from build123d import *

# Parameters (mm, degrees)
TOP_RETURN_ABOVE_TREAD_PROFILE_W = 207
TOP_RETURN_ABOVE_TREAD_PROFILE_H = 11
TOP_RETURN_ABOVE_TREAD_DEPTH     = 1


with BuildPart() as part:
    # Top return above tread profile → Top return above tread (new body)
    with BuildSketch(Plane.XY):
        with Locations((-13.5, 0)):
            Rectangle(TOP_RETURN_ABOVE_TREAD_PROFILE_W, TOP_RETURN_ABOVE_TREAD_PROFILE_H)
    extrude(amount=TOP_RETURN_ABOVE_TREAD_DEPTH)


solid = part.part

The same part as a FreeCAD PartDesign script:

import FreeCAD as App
import Part
import Sketcher

V = App.Vector
Q = App.Units.Quantity


def add_polygon(sketch, points):
    """Adds a closed chain of lines whose ends are joined by coincident constraints."""
    first, n = sketch.GeometryCount, len(points)
    for a, b in zip(points, points[1:] + points[:1]):
        sketch.addGeometry(Part.LineSegment(App.Vector(*a, 0), App.Vector(*b, 0)), False)
    for i in range(n):
        sketch.addConstraint(Sketcher.Constraint("Coincident", first + i, 2, first + (i + 1) % n, 1))

doc = App.newDocument("Part")
body = doc.addObject("PartDesign::Body", "Body")

# Sketch on XY plane
sketch1 = doc.addObject("Sketcher::SketchObject", "Sketch")
body.addObject(sketch1)
sketch1.AttachmentSupport = (doc.XY_Plane, [""])
sketch1.MapMode = "FlatFace"
add_polygon(sketch1, [(-117, 6), (-117, -6), (90, -6), (90, 6)])  # lines 0-3
sketch1.addConstraint([
    Sketcher.Constraint("Vertical", 0),
    Sketcher.Constraint("Horizontal", 1),
    Sketcher.Constraint("Vertical", 2),
    Sketcher.Constraint("Horizontal", 3),
    Sketcher.Constraint("DistanceX", 1, 1, 1, 2, Q("207 mm")),
    Sketcher.Constraint("DistanceY", 0, 2, 0, 1, Q("11 mm")),
    Sketcher.Constraint("DistanceX", 0, 2, -1, 1, Q("117 mm")),
    Sketcher.Constraint("DistanceY", 0, 2, -1, 1, Q("5.5 mm")),
])
pad1 = doc.addObject("PartDesign::Pad", "Pad")
body.addObject(pad1)
pad1.Profile = sketch1
pad1.Length = 1

doc.recompute()
